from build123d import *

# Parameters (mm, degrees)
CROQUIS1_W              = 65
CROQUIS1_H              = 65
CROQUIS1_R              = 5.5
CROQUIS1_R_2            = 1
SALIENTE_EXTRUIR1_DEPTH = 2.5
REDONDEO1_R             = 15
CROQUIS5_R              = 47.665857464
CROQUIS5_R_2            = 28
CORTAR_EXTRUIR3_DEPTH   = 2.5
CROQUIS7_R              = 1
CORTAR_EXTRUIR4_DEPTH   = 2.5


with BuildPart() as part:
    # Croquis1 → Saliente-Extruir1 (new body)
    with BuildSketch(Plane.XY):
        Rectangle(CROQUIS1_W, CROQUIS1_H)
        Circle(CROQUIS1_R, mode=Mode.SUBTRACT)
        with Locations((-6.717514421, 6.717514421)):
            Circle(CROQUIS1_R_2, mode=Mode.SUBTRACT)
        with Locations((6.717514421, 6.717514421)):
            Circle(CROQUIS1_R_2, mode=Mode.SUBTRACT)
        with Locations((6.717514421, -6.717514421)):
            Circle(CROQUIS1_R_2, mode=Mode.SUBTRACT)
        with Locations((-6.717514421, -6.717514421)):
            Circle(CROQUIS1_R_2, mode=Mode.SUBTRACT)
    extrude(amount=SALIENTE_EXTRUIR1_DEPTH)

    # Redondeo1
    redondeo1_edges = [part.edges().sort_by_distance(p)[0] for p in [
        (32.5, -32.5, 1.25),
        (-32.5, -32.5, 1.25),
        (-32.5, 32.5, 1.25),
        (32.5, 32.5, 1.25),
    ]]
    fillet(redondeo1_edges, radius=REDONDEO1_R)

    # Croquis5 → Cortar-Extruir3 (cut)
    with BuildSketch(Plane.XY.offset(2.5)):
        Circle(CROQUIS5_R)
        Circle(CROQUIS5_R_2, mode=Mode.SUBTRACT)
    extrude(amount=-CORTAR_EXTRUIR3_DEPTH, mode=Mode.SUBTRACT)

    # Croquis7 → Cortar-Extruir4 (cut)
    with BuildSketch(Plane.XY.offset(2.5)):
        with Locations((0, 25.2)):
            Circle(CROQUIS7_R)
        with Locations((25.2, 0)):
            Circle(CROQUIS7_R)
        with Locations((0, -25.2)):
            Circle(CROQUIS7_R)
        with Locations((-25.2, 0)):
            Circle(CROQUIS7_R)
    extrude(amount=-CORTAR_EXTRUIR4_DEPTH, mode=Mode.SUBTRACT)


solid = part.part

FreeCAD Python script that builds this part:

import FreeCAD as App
import Part
import Sketcher

V = App.Vector
Q = App.Units.Quantity


def edges_at(feature, points):
    """Names of the edges that pass closest to the given points."""
    edges = feature.Shape.Edges
    near = lambda p: min(range(len(edges)), key=lambda i: edges[i].distToShape(Part.Vertex(*p))[0])
    return sorted({f"Edge{near(p) + 1}" for p in points})

doc = App.newDocument("Part")
params = doc.addObject("Spreadsheet::Sheet", "Params")
for row, (alias, value) in enumerate([
    ("sketch1_diameter", "2 mm"),
    ("sketch1_diameter2", "11 mm"),
    ("sketch1_width", "65 mm"),
    ("pad1_length", "2.5 mm"),
    ("fillet_radius", "15 mm"),
    ("sketch2_diameter", "56 mm"),
    ("pocket1_length", "2.5 mm"),
    ("sketch3_diameter", "2 mm"),
    ("pocket2_length", "2.5 mm"),
], start=1):
    params.set(f"A{row}", alias)
    params.set(f"B{row}", "=" + value)
    params.setAlias(f"B{row}", alias)

body = doc.addObject("PartDesign::Body", "Body")

# Sketch on XY plane
sketch1 = body.newObject("Sketcher::SketchObject", "Sketch")
sketch1.AttachmentSupport = (doc.getObject("XY_Plane"), [""])
sketch1.MapMode = "FlatFace"
sketch1.addGeometry(Part.LineSegment(V(-32.5, 32.5, 0), V(-32.5, -32.5, 0)), False)
sketch1.addGeometry(Part.LineSegment(V(-32.5, -32.5, 0), V(32.5, -32.5, 0)), False)
sketch1.addGeometry(Part.LineSegment(V(32.5, -32.5, 0), V(32.5, 32.5, 0)), False)
sketch1.addGeometry(Part.LineSegment(V(32.5, 32.5, 0), V(-32.5, 32.5, 0)), False)
sketch1.addGeometry(Part.Circle(V(-6.717514, -6.717514, 0), V(0, 0, 1), 1), False)
sketch1.addGeometry(Part.Circle(V(6.717514, -6.717514, 0), V(0, 0, 1), 1), False)
sketch1.addGeometry(Part.Circle(V(-6.717514, 6.717514, 0), V(0, 0, 1), 1), False)
sketch1.addGeometry(Part.Circle(V(0, 0, 0), V(0, 0, 1), 5.5), False)
sketch1.addGeometry(Part.Circle(V(6.717514, 6.717514, 0), V(0, 0, 1), 1), False)
sketch1.addConstraint(Sketcher.Constraint("Coincident", 0, 2, 1, 1))
sketch1.addConstraint(Sketcher.Constraint("Coincident", 1, 2, 2, 1))
sketch1.addConstraint(Sketcher.Constraint("Coincident", 2, 2, 3, 1))
sketch1.addConstraint(Sketcher.Constraint("Coincident", 3, 2, 0, 1))
sketch1.addConstraint(Sketcher.Constraint("Vertical", 0))
sketch1.addConstraint(Sketcher.Constraint("Horizontal", 1))
sketch1.addConstraint(Sketcher.Constraint("Vertical", 2))
sketch1.addConstraint(Sketcher.Constraint("Horizontal", 3))
sketch1.addConstraint(Sketcher.Constraint("Coincident", 7, 3, -1, 1))
sketch1.addConstraint(Sketcher.Constraint("Equal", 4, 5))
sketch1.addConstraint(Sketcher.Constraint("Equal", 5, 6))
sketch1.addConstraint(Sketcher.Constraint("Equal", 6, 8))
sketch1.addConstraint(Sketcher.Constraint("Symmetric", 5, 3, 6, 3, -1, 1))
sketch1.addConstraint(Sketcher.Constraint("Symmetric", 4, 3, 8, 3, -1, 1))
sketch1.addConstraint(Sketcher.Constraint("Symmetric", 0, 2, 2, 2, -1, 1))
sketch1.addConstraint(Sketcher.Constraint("Symmetric", 4, 3, 5, 3, -2))
sketch1.addConstraint(Sketcher.Constraint("Equal", 3, 0))
sketch1.addConstraint(Sketcher.Constraint("Diameter", 4, Q("2 mm")))
sketch1.addConstraint(Sketcher.Constraint("Diameter", 7, Q("11 mm")))
sketch1.addConstraint(Sketcher.Constraint("DistanceX", 1, 1, 1, 2, Q("65 mm")))
sketch1.addConstraint(Sketcher.Constraint("DistanceX", 4, 3, 5, 3, Q("13.435029 mm")))
sketch1.addConstraint(Sketcher.Constraint("DistanceY", 4, 3, 6, 3, Q("13.435029 mm")))
sketch1.setExpression("Constraints[17]", "Params.sketch1_diameter")
sketch1.setExpression("Constraints[18]", "Params.sketch1_diameter2")
sketch1.setExpression("Constraints[19]", "Params.sketch1_width")
pad1 = body.newObject("PartDesign::Pad", "Pad")
pad1.Profile = sketch1
pad1.setExpression("Length", "Params.pad1_length")
doc.recompute()

fillet = body.newObject("PartDesign::Fillet", "Fillet")
fillet.Base = (pad1, edges_at(pad1, [
    (32.5, -32.5, 1.25),
    (-32.5, -32.5, 1.25),
    (-32.5, 32.5, 1.25),
    (32.5, 32.5, 1.25),
]))
fillet.setExpression("Radius", "Params.fillet_radius")

# Sketch on XY plane
sketch2 = body.newObject("Sketcher::SketchObject", "Sketch001")
sketch2.AttachmentSupport = (doc.getObject("XY_Plane"), [""])
sketch2.MapMode = "FlatFace"
sketch2.AttachmentOffset = App.Placement(V(0, 0, 2.5), App.Rotation())
sketch2.addGeometry(Part.Circle(V(0, 0, 0), V(0, 0, 1), 47.665857), False)
sketch2.addGeometry(Part.Circle(V(0, 0, 0), V(0, 0, 1), 28), False)
sketch2.addConstraint(Sketcher.Constraint("Coincident", 0, 3, -1, 1))
sketch2.addConstraint(Sketcher.Constraint("Coincident", 1, 3, -1, 1))
sketch2.addConstraint(Sketcher.Constraint("Diameter", 1, Q("56 mm")))
sketch2.addConstraint(Sketcher.Constraint("Diameter", 0, Q("95.331715 mm")))
sketch2.setExpression("Constraints[2]", "Params.sketch2_diameter")
pocket1 = body.newObject("PartDesign::Pocket", "Pocket")
pocket1.Profile = sketch2
pocket1.setExpression("Length", "Params.pocket1_length")

# Sketch on XY plane
sketch3 = body.newObject("Sketcher::SketchObject", "Sketch002")
sketch3.AttachmentSupport = (doc.getObject("XY_Plane"), [""])
sketch3.MapMode = "FlatFace"
sketch3.AttachmentOffset = App.Placement(V(0, 0, 2.5), App.Rotation())
sketch3.addGeometry(Part.Circle(V(0, 25.2, 0), V(0, 0, 1), 1), False)
sketch3.addGeometry(Part.Circle(V(25.2, 0, 0), V(0, 0, 1), 1), False)
sketch3.addGeometry(Part.Circle(V(0, -25.2, 0), V(0, 0, 1), 1), False)
sketch3.addGeometry(Part.Circle(V(-25.2, 0, 0), V(0, 0, 1), 1), False)
sketch3.addConstraint(Sketcher.Constraint("Equal", 0, 1))
sketch3.addConstraint(Sketcher.Constraint("Equal", 1, 2))
sketch3.addConstraint(Sketcher.Constraint("Equal", 2, 3))
sketch3.addConstraint(Sketcher.Constraint("Symmetric", 0, 3, 2, 3, -1, 1))
sketch3.addConstraint(Sketcher.Constraint("Symmetric", 1, 3, 3, 3, -1, 1))
sketch3.addConstraint(Sketcher.Constraint("PointOnObject", 0, 3, -2))
sketch3.addConstraint(Sketcher.Constraint("PointOnObject", 1, 3, -1))
sketch3.addConstraint(Sketcher.Constraint("Diameter", 0, Q("2 mm")))
sketch3.addConstraint(Sketcher.Constraint("DistanceY", -1, 1, 0, 3, Q("25.2 mm")))
sketch3.addConstraint(Sketcher.Constraint("DistanceX", -1, 1, 1, 3, Q("25.2 mm")))
sketch3.setExpression("Constraints[7]", "Params.sketch3_diameter")
pocket2 = body.newObject("PartDesign::Pocket", "Pocket001")
pocket2.Profile = sketch3
pocket2.setExpression("Length", "Params.pocket2_length")

doc.recompute()
